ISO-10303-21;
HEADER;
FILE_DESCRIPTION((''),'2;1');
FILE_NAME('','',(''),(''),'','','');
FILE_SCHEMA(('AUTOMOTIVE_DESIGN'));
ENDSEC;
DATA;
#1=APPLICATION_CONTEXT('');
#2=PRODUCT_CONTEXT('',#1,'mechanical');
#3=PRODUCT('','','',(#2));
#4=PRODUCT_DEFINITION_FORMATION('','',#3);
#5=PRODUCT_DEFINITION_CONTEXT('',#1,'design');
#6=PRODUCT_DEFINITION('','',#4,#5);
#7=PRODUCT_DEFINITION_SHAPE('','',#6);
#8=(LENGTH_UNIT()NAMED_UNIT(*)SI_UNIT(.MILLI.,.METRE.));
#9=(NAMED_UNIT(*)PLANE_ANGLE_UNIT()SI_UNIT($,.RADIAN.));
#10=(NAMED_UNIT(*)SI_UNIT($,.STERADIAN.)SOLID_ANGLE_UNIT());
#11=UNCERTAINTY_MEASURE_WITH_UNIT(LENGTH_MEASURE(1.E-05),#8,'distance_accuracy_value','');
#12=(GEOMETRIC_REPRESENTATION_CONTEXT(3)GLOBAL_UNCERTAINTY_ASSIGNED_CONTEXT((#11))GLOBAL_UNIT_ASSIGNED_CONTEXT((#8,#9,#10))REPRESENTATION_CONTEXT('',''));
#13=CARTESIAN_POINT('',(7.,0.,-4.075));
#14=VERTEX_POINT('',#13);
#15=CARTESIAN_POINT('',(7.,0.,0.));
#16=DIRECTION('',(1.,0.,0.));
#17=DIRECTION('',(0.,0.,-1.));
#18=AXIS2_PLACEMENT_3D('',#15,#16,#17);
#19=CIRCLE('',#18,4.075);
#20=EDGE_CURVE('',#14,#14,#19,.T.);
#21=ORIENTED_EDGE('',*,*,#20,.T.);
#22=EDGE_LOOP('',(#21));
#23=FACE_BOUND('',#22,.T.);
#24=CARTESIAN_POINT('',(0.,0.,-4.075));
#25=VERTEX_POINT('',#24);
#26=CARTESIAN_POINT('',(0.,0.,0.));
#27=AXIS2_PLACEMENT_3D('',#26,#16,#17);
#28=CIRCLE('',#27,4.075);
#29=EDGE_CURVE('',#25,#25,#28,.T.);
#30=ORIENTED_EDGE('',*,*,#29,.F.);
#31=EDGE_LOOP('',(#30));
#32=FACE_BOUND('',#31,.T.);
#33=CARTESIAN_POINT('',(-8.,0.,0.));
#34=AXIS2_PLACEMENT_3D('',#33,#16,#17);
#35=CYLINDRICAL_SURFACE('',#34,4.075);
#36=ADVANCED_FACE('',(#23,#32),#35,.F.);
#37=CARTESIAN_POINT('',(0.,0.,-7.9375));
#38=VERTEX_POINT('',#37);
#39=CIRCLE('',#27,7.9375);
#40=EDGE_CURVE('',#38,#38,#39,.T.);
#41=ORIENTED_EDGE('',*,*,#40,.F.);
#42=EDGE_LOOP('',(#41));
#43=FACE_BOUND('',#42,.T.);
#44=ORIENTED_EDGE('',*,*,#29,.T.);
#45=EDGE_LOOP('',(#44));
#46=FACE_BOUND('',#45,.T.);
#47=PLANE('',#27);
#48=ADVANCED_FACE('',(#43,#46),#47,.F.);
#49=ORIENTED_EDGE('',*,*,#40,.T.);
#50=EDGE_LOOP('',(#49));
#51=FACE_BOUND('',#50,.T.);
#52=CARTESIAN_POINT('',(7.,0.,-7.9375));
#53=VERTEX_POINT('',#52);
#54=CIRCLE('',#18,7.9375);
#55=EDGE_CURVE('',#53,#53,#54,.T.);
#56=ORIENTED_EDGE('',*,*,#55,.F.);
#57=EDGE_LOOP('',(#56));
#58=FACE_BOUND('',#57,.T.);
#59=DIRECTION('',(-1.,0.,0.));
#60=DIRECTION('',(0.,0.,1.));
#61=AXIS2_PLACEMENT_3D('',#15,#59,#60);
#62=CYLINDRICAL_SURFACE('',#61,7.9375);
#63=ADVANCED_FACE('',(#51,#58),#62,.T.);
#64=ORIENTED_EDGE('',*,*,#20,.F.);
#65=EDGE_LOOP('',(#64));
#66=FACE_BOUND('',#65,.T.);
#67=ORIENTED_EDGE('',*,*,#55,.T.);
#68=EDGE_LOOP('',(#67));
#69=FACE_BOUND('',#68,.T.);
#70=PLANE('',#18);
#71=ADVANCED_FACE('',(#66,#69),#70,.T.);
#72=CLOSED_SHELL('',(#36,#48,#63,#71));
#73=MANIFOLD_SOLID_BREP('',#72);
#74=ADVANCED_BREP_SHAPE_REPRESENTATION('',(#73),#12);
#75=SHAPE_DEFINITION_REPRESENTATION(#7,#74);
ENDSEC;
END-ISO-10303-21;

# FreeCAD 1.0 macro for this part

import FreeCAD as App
import Part
import Sketcher
from FreeCAD import Vector

doc = App.newDocument("Part")
body = doc.addObject("PartDesign::Body", "Body")

sketch1 = doc.addObject("Sketcher::SketchObject", "Sketch")
body.addObject(sketch1)
sketch1.AttachmentSupport = (doc.YZ_Plane, [""])
sketch1.MapMode = "FlatFace"
sketch1.addGeometry(Part.Circle(Vector(0, 0, 0), Vector(0, 0, 1), 8), False)
sketch1.addConstraint(Sketcher.Constraint("Coincident", 0, 3, -1, 1))
sketch1.addConstraint(Sketcher.Constraint("Diameter", 0, 15.875))
pad1 = doc.addObject("PartDesign::Pad", "Pad")
body.addObject(pad1)
pad1.Profile = sketch1
pad1.Length = 7

sketch2 = doc.addObject("Sketcher::SketchObject", "Sketch001")
body.addObject(sketch2)
sketch2.AttachmentSupport = (doc.YZ_Plane, [""])
sketch2.MapMode = "FlatFace"
sketch2.AttachmentOffset = App.Placement(Vector(0, 0, 7), App.Rotation())
sketch2.addGeometry(Part.Circle(Vector(0, 0, 0), Vector(0, 0, 1), 4.1), False)
sketch2.addConstraint(Sketcher.Constraint("Coincident", 0, 3, -1, 1))
sketch2.addConstraint(Sketcher.Constraint("Diameter", 0, 8.15))
pocket1 = doc.addObject("PartDesign::Pocket", "Pocket")
body.addObject(pocket1)
pocket1.Profile = sketch2
pocket1.Length = 15

doc.recompute()
